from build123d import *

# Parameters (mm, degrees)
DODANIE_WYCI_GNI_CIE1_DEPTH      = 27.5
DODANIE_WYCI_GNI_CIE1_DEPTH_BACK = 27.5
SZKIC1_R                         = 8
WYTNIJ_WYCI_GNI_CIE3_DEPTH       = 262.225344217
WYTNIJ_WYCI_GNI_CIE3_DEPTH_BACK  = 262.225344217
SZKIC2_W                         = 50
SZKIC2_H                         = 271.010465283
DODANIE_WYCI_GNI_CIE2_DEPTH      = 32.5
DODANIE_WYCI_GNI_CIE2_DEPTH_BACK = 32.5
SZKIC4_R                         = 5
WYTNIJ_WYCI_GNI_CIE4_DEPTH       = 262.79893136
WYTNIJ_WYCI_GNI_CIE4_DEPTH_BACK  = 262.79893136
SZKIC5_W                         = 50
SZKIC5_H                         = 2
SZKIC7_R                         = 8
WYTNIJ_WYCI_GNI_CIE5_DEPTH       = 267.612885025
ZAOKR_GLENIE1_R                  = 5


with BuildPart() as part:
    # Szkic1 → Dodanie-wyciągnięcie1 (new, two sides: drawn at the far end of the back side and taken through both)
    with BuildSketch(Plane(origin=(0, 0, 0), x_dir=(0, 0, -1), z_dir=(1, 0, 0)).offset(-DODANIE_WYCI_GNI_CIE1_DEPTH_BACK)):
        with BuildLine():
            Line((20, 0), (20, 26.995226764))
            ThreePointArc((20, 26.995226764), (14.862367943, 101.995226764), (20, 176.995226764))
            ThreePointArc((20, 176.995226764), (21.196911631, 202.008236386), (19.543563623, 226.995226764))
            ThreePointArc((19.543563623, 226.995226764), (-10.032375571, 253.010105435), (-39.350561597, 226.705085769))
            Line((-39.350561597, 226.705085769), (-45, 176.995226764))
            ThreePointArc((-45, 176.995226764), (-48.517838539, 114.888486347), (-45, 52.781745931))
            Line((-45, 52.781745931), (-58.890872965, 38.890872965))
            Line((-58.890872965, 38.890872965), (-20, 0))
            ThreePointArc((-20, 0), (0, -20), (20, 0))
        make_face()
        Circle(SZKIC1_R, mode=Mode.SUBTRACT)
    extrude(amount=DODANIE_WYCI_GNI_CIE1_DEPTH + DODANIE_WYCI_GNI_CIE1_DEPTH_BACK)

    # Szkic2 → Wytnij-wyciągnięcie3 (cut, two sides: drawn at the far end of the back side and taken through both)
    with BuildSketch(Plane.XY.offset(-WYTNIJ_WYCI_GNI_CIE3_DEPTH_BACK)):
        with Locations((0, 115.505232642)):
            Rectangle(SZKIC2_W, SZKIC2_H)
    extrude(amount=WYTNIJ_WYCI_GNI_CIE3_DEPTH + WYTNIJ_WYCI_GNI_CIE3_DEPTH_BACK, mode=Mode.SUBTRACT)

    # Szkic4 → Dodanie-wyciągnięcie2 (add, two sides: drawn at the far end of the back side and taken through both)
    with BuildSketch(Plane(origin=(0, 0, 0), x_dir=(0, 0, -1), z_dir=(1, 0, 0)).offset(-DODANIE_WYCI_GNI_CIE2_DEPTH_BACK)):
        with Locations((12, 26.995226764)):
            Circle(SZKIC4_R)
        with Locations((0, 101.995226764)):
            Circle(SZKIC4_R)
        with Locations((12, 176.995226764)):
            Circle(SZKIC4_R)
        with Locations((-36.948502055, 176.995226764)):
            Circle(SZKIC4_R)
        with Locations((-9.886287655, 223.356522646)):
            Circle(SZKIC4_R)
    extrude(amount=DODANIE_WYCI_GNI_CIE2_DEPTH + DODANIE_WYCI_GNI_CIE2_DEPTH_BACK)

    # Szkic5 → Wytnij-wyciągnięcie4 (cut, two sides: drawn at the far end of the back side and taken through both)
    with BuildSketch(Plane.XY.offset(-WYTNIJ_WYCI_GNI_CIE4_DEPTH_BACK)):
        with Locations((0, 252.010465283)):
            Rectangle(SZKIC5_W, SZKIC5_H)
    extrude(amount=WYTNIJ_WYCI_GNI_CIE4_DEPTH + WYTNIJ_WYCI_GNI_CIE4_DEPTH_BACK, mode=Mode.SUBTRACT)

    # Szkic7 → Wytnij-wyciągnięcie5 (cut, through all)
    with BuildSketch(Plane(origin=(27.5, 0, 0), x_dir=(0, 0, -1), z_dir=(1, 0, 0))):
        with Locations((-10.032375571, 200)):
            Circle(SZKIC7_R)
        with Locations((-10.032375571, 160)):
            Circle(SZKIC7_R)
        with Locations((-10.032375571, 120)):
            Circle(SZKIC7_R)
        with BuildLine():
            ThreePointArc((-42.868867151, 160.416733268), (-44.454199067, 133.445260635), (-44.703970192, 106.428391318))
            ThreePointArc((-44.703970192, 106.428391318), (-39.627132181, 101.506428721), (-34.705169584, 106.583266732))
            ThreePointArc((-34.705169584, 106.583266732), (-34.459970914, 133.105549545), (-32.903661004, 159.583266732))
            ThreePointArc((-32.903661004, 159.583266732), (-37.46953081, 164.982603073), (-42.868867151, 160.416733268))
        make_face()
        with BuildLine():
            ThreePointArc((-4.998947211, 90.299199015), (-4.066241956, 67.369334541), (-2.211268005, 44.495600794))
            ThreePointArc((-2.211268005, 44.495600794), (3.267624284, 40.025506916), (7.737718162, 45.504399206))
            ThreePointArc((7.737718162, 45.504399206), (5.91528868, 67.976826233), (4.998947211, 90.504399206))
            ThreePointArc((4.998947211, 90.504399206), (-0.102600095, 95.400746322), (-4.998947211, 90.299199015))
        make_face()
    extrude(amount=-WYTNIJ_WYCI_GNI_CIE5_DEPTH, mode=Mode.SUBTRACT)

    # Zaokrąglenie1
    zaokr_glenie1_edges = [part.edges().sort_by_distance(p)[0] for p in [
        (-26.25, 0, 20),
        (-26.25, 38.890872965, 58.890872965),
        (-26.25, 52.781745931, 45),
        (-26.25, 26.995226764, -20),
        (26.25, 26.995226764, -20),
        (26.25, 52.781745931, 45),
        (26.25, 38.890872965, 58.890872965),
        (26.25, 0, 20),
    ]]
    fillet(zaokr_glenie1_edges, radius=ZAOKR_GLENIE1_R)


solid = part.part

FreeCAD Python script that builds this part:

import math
import FreeCAD as App
import Part
import Sketcher
from FreeCAD import Vector
Q = App.Units.Quantity


def edges_at(feature, points):
    """Names of the edges that pass closest to the given points."""
    edges = feature.Shape.Edges
    near = lambda p: min(range(len(edges)), key=lambda i: edges[i].distToShape(Part.Vertex(*p))[0])
    return sorted({f"Edge{near(p) + 1}" for p in points})

doc = App.newDocument("Part")
body = doc.addObject("PartDesign::Body", "Body")

# Sketch on YZ plane
sketch1 = body.newObject("Sketcher::SketchObject", "Sketch")
sketch1.AttachmentSupport = (doc.getObject("YZ_Plane"), [""])
sketch1.MapMode = "FlatFace"
sketch1.addGeometry([
    Part.LineSegment(Vector(0, -20, 0), Vector(27, -20, 0)),  # 0
    Part.ArcOfCircle(Part.Circle(Vector(102, -565, 0), Vector(0, 0, 1), 550), math.radians(82.16), math.radians(97.84)),  # 1
    Part.ArcOfCircle(Part.Circle(Vector(200, 199, 0), Vector(0, 0, 1), 220), math.radians(-96), math.radians(-82.95)),  # 2
    Part.ArcOfCircle(Part.Circle(Vector(223, 10, 0), Vector(0, 0, 1), 30), math.radians(-83), math.radians(84)),  # 3
    Part.LineSegment(Vector(227, 39, 0), Vector(177, 45, 0)),  # 4
    Part.ArcOfCircle(Part.Circle(Vector(115, -501, 0), Vector(0, 0, 1), 550), math.radians(83.52), math.radians(96.48)),  # 5
    Part.LineSegment(Vector(53, 45, 0), Vector(39, 59, 0)),  # 6
    Part.LineSegment(Vector(39, 59, 0), Vector(0, 20, 0)),  # 7
    Part.ArcOfCircle(Part.Circle(Vector(0, 0, 0), Vector(0, 0, 1), 20), math.radians(90), math.radians(270)),  # 8
    Part.Circle(Vector(0, 0, 0), Vector(0, 0, 1), 8),  # 9
], False)
sketch1.addConstraint([
    Sketcher.Constraint("Coincident", 0, 2, 1, 2),
    Sketcher.Constraint("Coincident", 1, 1, 2, 1),
    Sketcher.Constraint("Tangent", 2, 2, 3, 1),
    Sketcher.Constraint("Tangent", 3, 2, 4, 1),
    Sketcher.Constraint("Tangent", 4, 2, 5, 1),
    Sketcher.Constraint("Coincident", 5, 2, 6, 1),
    Sketcher.Constraint("Coincident", 6, 2, 7, 1),
    Sketcher.Constraint("Coincident", 7, 2, 8, 1),
    Sketcher.Constraint("Tangent", 8, 2, 0, 1),
    Sketcher.Constraint("Horizontal", 0),
    Sketcher.Constraint("Coincident", 8, 3, -1, 1),
    Sketcher.Constraint("Coincident", 9, 3, -1, 1),
    Sketcher.Constraint("Equal", 1, 5),
    Sketcher.Constraint("PointOnObject", 7, 2, -2),
    Sketcher.Constraint("Perpendicular", 6, 7),
    Sketcher.Constraint("Horizontal", 0, 2, 1, 1),
    Sketcher.Constraint("Horizontal", 4, 2, 5, 2),
    Sketcher.Constraint("Vertical", 1, 1, 4, 2),
    Sketcher.Constraint("Diameter", 9, 16.0),
    Sketcher.Constraint("Radius", 1, 550.0),
    Sketcher.Constraint("Radius", 2, 220.0),
    Sketcher.Constraint("Radius", 8, 20.0),
    Sketcher.Constraint("Angle", 6, Q("135 deg")),
    Sketcher.Constraint("Distance", 7, 55.0),
    Sketcher.Constraint("DistanceX", -1, 1, 2, 3, 200.0),
    Sketcher.Constraint("DistanceY", -1, 1, 4, 2, 45.0),
    Sketcher.Constraint("DistanceX", 0, 2, 1, 1, 150.0),
    Sketcher.Constraint("DistanceX", 0, 2, 2, 2, 200.0),
    Sketcher.Constraint("Radius", 3, 29.653943),
])
pad1 = body.newObject("PartDesign::Pad", "Pad")
pad1.Profile = sketch1
pad1.Type = "TwoLengths"
pad1.Length = 27.5
pad1.Length2 = 27.5

# Sketch on XY plane
sketch2 = body.newObject("Sketcher::SketchObject", "Sketch001")
sketch2.AttachmentSupport = (doc.getObject("XY_Plane"), [""])
sketch2.MapMode = "FlatFace"
sketch2.addGeometry([
    Part.LineSegment(Vector(-25, 251, 0), Vector(-25, -20, 0)),
    Part.LineSegment(Vector(-25, -20, 0), Vector(25, -20, 0)),
    Part.LineSegment(Vector(25, -20, 0), Vector(25, 251, 0)),
    Part.LineSegment(Vector(25, 251, 0), Vector(-25, 251, 0)),
], False)
sketch2.addConstraint([
    Sketcher.Constraint("Coincident", 0, 2, 1, 1),
    Sketcher.Constraint("Coincident", 1, 2, 2, 1),
    Sketcher.Constraint("Coincident", 2, 2, 3, 1),
    Sketcher.Constraint("Coincident", 3, 2, 0, 1),
    Sketcher.Constraint("Vertical", 0),
    Sketcher.Constraint("Horizontal", 1),
    Sketcher.Constraint("Vertical", 2),
    Sketcher.Constraint("Horizontal", 3),
    Sketcher.Constraint("DistanceX", 1, 1, 1, 2, 50.0),
    Sketcher.Constraint("DistanceX", 0, 2, -1, 1, 25.0),
    Sketcher.Constraint("DistanceY", 0, 2, -1, 1, 20.0),
    Sketcher.Constraint("DistanceY", 0, 2, 0, 1, 271.010465),
])
pocket1 = body.newObject("PartDesign::Pocket", "Pocket")
pocket1.Profile = sketch2
pocket1.Type = "ThroughAll"
pocket1.Midplane = True

# Sketch on YZ plane
sketch3 = body.newObject("Sketcher::SketchObject", "Sketch002")
sketch3.AttachmentSupport = (doc.getObject("YZ_Plane"), [""])
sketch3.MapMode = "FlatFace"
sketch3.addGeometry([
    Part.Circle(Vector(27, -12, 0), Vector(0, 0, 1), 5),  # 0
    Part.Circle(Vector(102, 0, 0), Vector(0, 0, 1), 5),  # 1
    Part.Circle(Vector(177, -12, 0), Vector(0, 0, 1), 5),  # 2
    Part.Circle(Vector(177, 37, 0), Vector(0, 0, 1), 5),  # 3
    Part.Circle(Vector(223, 10, 0), Vector(0, 0, 1), 5),  # 4
], False)
sketch3.addConstraint([
    Sketcher.Constraint("Equal", 0, 1),
    Sketcher.Constraint("Equal", 1, 2),
    Sketcher.Constraint("Equal", 2, 3),
    Sketcher.Constraint("Equal", 3, 4),
    Sketcher.Constraint("PointOnObject", 1, 3, -1),
    Sketcher.Constraint("Horizontal", 0, 3, 2, 3),
    Sketcher.Constraint("Vertical", 2, 3, 3, 3),
    Sketcher.Constraint("Diameter", 0, 10.0),
    Sketcher.Constraint("DistanceY", 0, 3, -1, 1, 12.0),
    Sketcher.Constraint("DistanceX", 0, 3, 1, 3, 75.0),
    Sketcher.Constraint("DistanceX", 1, 3, 2, 3, 75.0),
    Sketcher.Constraint("DistanceX", -1, 1, 0, 3, 26.995227),
    Sketcher.Constraint("DistanceY", -1, 1, 3, 3, 36.948502),
    Sketcher.Constraint("DistanceX", -1, 1, 4, 3, 223.356523),
    Sketcher.Constraint("DistanceY", -1, 1, 4, 3, 9.886288),
])
pad2 = body.newObject("PartDesign::Pad", "Pad001")
pad2.Profile = sketch3
pad2.Type = "TwoLengths"
pad2.Length = 32.5
pad2.Length2 = 32.5

# Sketch on XY plane
sketch4 = body.newObject("Sketcher::SketchObject", "Sketch003")
sketch4.AttachmentSupport = (doc.getObject("XY_Plane"), [""])
sketch4.MapMode = "FlatFace"
sketch4.addGeometry([
    Part.LineSegment(Vector(-25, 253, 0), Vector(-25, 251, 0)),
    Part.LineSegment(Vector(-25, 251, 0), Vector(25, 251, 0)),
    Part.LineSegment(Vector(25, 251, 0), Vector(25, 253, 0)),
    Part.LineSegment(Vector(25, 253, 0), Vector(-25, 253, 0)),
], False)
sketch4.addConstraint([
    Sketcher.Constraint("Coincident", 0, 2, 1, 1),
    Sketcher.Constraint("Coincident", 1, 2, 2, 1),
    Sketcher.Constraint("Coincident", 2, 2, 3, 1),
    Sketcher.Constraint("Coincident", 3, 2, 0, 1),
    Sketcher.Constraint("Vertical", 0),
    Sketcher.Constraint("Horizontal", 1),
    Sketcher.Constraint("Vertical", 2),
    Sketcher.Constraint("Horizontal", 3),
    Sketcher.Constraint("DistanceX", 1, 1, 1, 2, 50.0),
    Sketcher.Constraint("DistanceY", 0, 2, 0, 1, 2.0),
    Sketcher.Constraint("DistanceX", 0, 2, -1, 1, 25.0),
    Sketcher.Constraint("DistanceY", -1, 1, 0, 2, 251.010465),
])
pocket2 = body.newObject("PartDesign::Pocket", "Pocket001")
pocket2.Profile = sketch4
pocket2.Type = "ThroughAll"
pocket2.Midplane = True

# Sketch on YZ plane
sketch5 = body.newObject("Sketcher::SketchObject", "Sketch004")
sketch5.AttachmentSupport = (doc.getObject("YZ_Plane"), [""])
sketch5.MapMode = "FlatFace"
sketch5.AttachmentOffset = App.Placement(Vector(0, 0, 27.5), App.Rotation())
sketch5.addGeometry([
    Part.Circle(Vector(200, 10, 0), Vector(0, 0, 1), 8),  # 0
    Part.Circle(Vector(160, 10, 0), Vector(0, 0, 1), 8),  # 1
    Part.Circle(Vector(120, 10, 0), Vector(0, 0, 1), 8),  # 2
    Part.ArcOfCircle(Part.Circle(Vector(115, -501, 0), Vector(0, 0, 1), 546), math.radians(85.22), math.radians(90.89)),  # 3
    Part.ArcOfCircle(Part.Circle(Vector(107, 40, 0), Vector(0, 0, 1), 5), math.radians(91), math.radians(271)),  # 4
    Part.ArcOfCircle(Part.Circle(Vector(115, -501, 0), Vector(0, 0, 1), 536), math.radians(85.22), math.radians(90.89)),  # 5
    Part.ArcOfCircle(Part.Circle(Vector(160, 38, 0), Vector(0, 0, 1), 5), math.radians(-95), math.radians(85)),  # 6
    Part.ArcOfCircle(Part.Circle(Vector(102, -565, 0), Vector(0, 0, 1), 570), math.radians(91.18), math.radians(95.79)),  # 7
    Part.ArcOfCircle(Part.Circle(Vector(45, -3, 0), Vector(0, 0, 1), 5), math.radians(96), math.radians(276)),  # 8
    Part.ArcOfCircle(Part.Circle(Vector(102, -565, 0), Vector(0, 0, 1), 560), math.radians(91.18), math.radians(95.79)),  # 9
    Part.ArcOfCircle(Part.Circle(Vector(90, 0, 0), Vector(0, 0, 1), 5), math.radians(-89), math.radians(91)),  # 10
], False)
sketch5.addConstraint([
    Sketcher.Constraint("Tangent", 3, 2, 4, 1),
    Sketcher.Constraint("Tangent", 4, 2, 5, 2),
    Sketcher.Constraint("Tangent", 5, 1, 6, 1),
    Sketcher.Constraint("Tangent", 6, 2, 3, 1),
    Sketcher.Constraint("Tangent", 7, 2, 8, 1),
    Sketcher.Constraint("Tangent", 8, 2, 9, 2),
    Sketcher.Constraint("Tangent", 9, 1, 10, 1),
    Sketcher.Constraint("Tangent", 10, 2, 7, 1),
    Sketcher.Constraint("Coincident", 5, 3, 3, 3),
    Sketcher.Constraint("Coincident", 9, 3, 7, 3),
    Sketcher.Constraint("Equal", 0, 1),
    Sketcher.Constraint("Equal", 1, 2),
    Sketcher.Constraint("Equal", 6, 8),
    Sketcher.Constraint("PointOnObject", 10, 3, -1),
    Sketcher.Constraint("Horizontal", 0, 3, 1, 3),
    Sketcher.Constraint("Horizontal", 1, 3, 2, 3),
    Sketcher.Constraint("Vertical", 1, 3, 6, 3),
    Sketcher.Constraint("Diameter", 0, 16.0),
    Sketcher.Constraint("Radius", 4, 5.0),
    Sketcher.Constraint("DistanceX", -1, 1, 0, 3, 200.0),
    Sketcher.Constraint("DistanceX", -1, 1, 1, 3, 160.0),
    Sketcher.Constraint("DistanceX", -1, 1, 2, 3, 120.0),
    Sketcher.Constraint("DistanceX", -1, 1, 8, 3, 45.0),
    Sketcher.Constraint("Radius", 3, 546.251648),
    Sketcher.Constraint("Radius", 7, 569.981329),
    Sketcher.Constraint("DistanceX", -1, 1, 10, 3, 90.401799),
    Sketcher.Constraint("DistanceY", 8, 3, 2, 3, 12.795601),
    Sketcher.Constraint("DistanceY", 7, 2, 4, 2, 32.493902),
    Sketcher.Constraint("DistanceY", 3, 3, -1, 1, 501.482161),
    Sketcher.Constraint("DistanceX", -1, 1, 4, 3, 106.505829),
    Sketcher.Constraint("DistanceY", -1, 1, 4, 3, 39.70457),
])
pocket3 = body.newObject("PartDesign::Pocket", "Pocket002")
pocket3.Profile = sketch5
pocket3.Type = "ThroughAll"
doc.recompute()

fillet = body.newObject("PartDesign::Fillet", "Fillet")
fillet.Base = (pocket3, edges_at(pocket3, [
    (-26.25, 0, 20),
    (-26.25, 38.891, 58.891),
    (-26.25, 52.782, 45),
    (-26.25, 26.995, -20),
    (26.25, 26.995, -20),
    (26.25, 52.782, 45),
    (26.25, 38.891, 58.891),
    (26.25, 0, 20),
]))
fillet.Radius = 5

doc.recompute()
